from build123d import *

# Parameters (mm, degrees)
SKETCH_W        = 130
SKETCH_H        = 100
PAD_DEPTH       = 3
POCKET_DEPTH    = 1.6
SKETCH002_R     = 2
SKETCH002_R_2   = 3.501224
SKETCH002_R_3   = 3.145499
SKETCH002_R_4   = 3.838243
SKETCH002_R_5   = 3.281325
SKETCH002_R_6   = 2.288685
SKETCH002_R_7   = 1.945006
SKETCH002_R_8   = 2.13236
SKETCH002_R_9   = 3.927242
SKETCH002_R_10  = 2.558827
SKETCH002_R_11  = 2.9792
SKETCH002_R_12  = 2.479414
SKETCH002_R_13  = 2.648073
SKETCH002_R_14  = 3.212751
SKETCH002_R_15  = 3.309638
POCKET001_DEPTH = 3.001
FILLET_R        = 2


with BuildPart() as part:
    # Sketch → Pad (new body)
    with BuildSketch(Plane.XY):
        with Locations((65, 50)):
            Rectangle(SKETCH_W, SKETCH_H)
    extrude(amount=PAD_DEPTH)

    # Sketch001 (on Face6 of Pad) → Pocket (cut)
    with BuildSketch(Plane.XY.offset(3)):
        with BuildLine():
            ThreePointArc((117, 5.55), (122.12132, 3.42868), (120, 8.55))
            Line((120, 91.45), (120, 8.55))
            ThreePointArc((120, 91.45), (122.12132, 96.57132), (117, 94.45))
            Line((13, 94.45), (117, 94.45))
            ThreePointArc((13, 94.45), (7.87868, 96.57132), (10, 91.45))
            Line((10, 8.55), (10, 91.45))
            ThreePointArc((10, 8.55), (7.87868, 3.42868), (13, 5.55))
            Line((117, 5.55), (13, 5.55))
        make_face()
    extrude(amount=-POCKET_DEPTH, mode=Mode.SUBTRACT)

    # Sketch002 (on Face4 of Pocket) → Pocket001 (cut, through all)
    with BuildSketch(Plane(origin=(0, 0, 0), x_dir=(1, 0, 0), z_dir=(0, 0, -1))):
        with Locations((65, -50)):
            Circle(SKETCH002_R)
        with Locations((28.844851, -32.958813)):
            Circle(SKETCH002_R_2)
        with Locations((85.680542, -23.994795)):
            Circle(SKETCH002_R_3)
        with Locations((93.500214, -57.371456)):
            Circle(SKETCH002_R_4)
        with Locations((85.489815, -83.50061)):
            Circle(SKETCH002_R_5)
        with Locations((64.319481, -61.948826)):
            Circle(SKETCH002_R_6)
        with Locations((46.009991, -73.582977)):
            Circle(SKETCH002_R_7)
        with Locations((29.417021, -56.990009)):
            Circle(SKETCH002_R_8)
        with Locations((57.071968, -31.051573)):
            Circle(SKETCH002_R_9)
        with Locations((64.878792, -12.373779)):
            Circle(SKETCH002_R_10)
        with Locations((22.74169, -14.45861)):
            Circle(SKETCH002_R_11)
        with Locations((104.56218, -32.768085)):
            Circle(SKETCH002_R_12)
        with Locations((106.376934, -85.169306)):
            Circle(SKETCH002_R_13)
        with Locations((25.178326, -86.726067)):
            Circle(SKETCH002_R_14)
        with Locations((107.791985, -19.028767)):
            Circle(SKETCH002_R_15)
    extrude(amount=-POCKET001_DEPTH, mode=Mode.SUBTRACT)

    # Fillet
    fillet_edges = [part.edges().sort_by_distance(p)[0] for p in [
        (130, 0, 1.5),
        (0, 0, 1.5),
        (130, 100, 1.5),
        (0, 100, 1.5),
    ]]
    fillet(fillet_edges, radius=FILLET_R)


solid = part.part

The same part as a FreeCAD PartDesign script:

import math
import FreeCAD as App
import Part
import Sketcher

V = App.Vector


def edges_at(feature, points):
    """Names of the edges that pass closest to the given points."""
    edges = feature.Shape.Edges
    near = lambda p: min(range(len(edges)), key=lambda i: edges[i].distToShape(Part.Vertex(*p))[0])
    return sorted({f"Edge{near(p) + 1}" for p in points})

doc = App.newDocument("Part")
params = doc.addObject("Spreadsheet::Sheet", "Params")
for row, (alias, value) in enumerate([
    ("sketch1_width", "130 mm"),
    ("sketch1_height", "100 mm"),
    ("pad1_length", "3 mm"),
    ("sketch2_radius", "3 mm"),
    ("sketch2_width", "104 mm"),
    ("sketch2_height", "82.9 mm"),
    ("pocket1_length", "1.6 mm"),
    ("sketch3_diameter", "4 mm"),
    ("fillet_radius", "2 mm"),
], start=1):
    params.set(f"A{row}", alias)
    params.set(f"B{row}", "=" + value)
    params.setAlias(f"B{row}", alias)

body = doc.addObject("PartDesign::Body", "Body")

sketch1 = body.newObject("Sketcher::SketchObject", "Sketch")
sketch1.AttachmentSupport = (doc.getObject("XY_Plane"), [""])
sketch1.MapMode = "FlatFace"
sketch1.addGeometry([
    Part.LineSegment(V(0, 100, 0), V(0, 0, 0)),
    Part.LineSegment(V(0, 0, 0), V(130, 0, 0)),
    Part.LineSegment(V(130, 0, 0), V(130, 100, 0)),
    Part.LineSegment(V(130, 100, 0), V(0, 100, 0)),
], False)
sketch1.addConstraint([
    Sketcher.Constraint("Coincident", 0, 2, 1, 1),
    Sketcher.Constraint("Coincident", 1, 2, 2, 1),
    Sketcher.Constraint("Coincident", 2, 2, 3, 1),
    Sketcher.Constraint("Coincident", 3, 2, 0, 1),
    Sketcher.Constraint("Vertical", 0),
    Sketcher.Constraint("Horizontal", 1),
    Sketcher.Constraint("Vertical", 2),
    Sketcher.Constraint("Horizontal", 3),
    Sketcher.Constraint("Coincident", 0, 2, -1, 1),
    Sketcher.Constraint("DistanceX", 1, 1, 1, 2, 130.0),
    Sketcher.Constraint("DistanceY", 0, 2, 0, 1, 100.0),
])
sketch1.setExpression("Constraints[9]", "Params.sketch1_width")
sketch1.setExpression("Constraints[10]", "Params.sketch1_height")
pad1 = body.newObject("PartDesign::Pad", "Pad")
pad1.Profile = sketch1
pad1.setExpression("Length", "Params.pad1_length")

sketch2 = body.newObject("Sketcher::SketchObject", "Sketch001")
sketch2.AttachmentSupport = (doc.getObject("XY_Plane"), [""])
sketch2.MapMode = "FlatFace"
sketch2.AttachmentOffset = App.Placement(V(0, 0, 3), App.Rotation())
sketch2.addGeometry([
    Part.ArcOfCircle(Part.Circle(V(120, 5.6, 0), V(0, 0, 1), 3), math.radians(-180), math.radians(90)),
    Part.LineSegment(V(120, 8.6, 0), V(120, 91.5, 0)),
    Part.ArcOfCircle(Part.Circle(V(120, 94.4, 0), V(0, 0, 1), 3), math.radians(-90), math.radians(180)),
    Part.LineSegment(V(117, 94.5, 0), V(13, 94.5, 0)),
    Part.ArcOfCircle(Part.Circle(V(10, 94.4, 0), V(0, 0, 1), 3), math.radians(0), math.radians(270)),
    Part.LineSegment(V(10, 91.5, 0), V(10, 8.6, 0)),
    Part.ArcOfCircle(Part.Circle(V(10, 5.6, 0), V(0, 0, 1), 3), math.radians(90), math.radians(360)),
    Part.LineSegment(V(13, 5.5, 0), V(117, 5.5, 0)),
], False)
sketch2.addConstraint([
    Sketcher.Constraint("Coincident", 0, 2, 1, 1),
    Sketcher.Constraint("Coincident", 1, 2, 2, 1),
    Sketcher.Constraint("Coincident", 2, 2, 3, 1),
    Sketcher.Constraint("Coincident", 3, 2, 4, 1),
    Sketcher.Constraint("Coincident", 4, 2, 5, 1),
    Sketcher.Constraint("Coincident", 5, 2, 6, 1),
    Sketcher.Constraint("Coincident", 6, 2, 7, 1),
    Sketcher.Constraint("Coincident", 7, 2, 0, 1),
    Sketcher.Constraint("Vertical", 1),
    Sketcher.Constraint("Horizontal", 3),
    Sketcher.Constraint("Vertical", 5),
    Sketcher.Constraint("Horizontal", 7),
    Sketcher.Constraint("Equal", 0, 2),
    Sketcher.Constraint("Equal", 2, 4),
    Sketcher.Constraint("Equal", 4, 6),
    Sketcher.Constraint("Horizontal", 2, 3, 4, 3),
    Sketcher.Constraint("Horizontal", 0, 3, 6, 3),
    Sketcher.Constraint("Horizontal", 4, 3, 2, 2),
    Sketcher.Constraint("Horizontal", 0, 3, 6, 2),
    Sketcher.Constraint("Vertical", 0, 3, 2, 3),
    Sketcher.Constraint("Vertical", 4, 3, 6, 3),
    Sketcher.Constraint("Vertical", 2, 3, 0, 2),
    Sketcher.Constraint("Vertical", 6, 3, 4, 2),
    Sketcher.Constraint("Radius", 0, 3.0),
    Sketcher.Constraint("DistanceX", 3, 2, 3, 1, 104.0),
    Sketcher.Constraint("DistanceY", 1, 1, 1, 2, 82.9),
    Sketcher.Constraint("DistanceX", -1, 1, 0, 3, 120.0),
    Sketcher.Constraint("DistanceY", -1, 1, 0, 3, 5.55),
])
sketch2.setExpression("Constraints[23]", "Params.sketch2_radius")
sketch2.setExpression("Constraints[24]", "Params.sketch2_width")
sketch2.setExpression("Constraints[25]", "Params.sketch2_height")
pocket1 = body.newObject("PartDesign::Pocket", "Pocket")
pocket1.Profile = sketch2
pocket1.setExpression("Length", "Params.pocket1_length")

sketch3 = body.newObject("Sketcher::SketchObject", "Sketch002")
sketch3.AttachmentSupport = (doc.getObject("XY_Plane"), [""])
sketch3.MapMode = "FlatFace"
sketch3.addGeometry([
    Part.Circle(V(65, 50, 0), V(0, 0, 1), 2),
    Part.Circle(V(28.8, 33, 0), V(0, 0, 1), 3.5),
    Part.Circle(V(85.7, 24, 0), V(0, 0, 1), 3.1),
    Part.Circle(V(93.5, 57.4, 0), V(0, 0, 1), 3.8),
    Part.Circle(V(85.5, 83.5, 0), V(0, 0, 1), 3.3),
    Part.Circle(V(64.3, 61.9, 0), V(0, 0, 1), 2.3),
    Part.Circle(V(46, 73.6, 0), V(0, 0, 1), 1.9),
    Part.Circle(V(29.4, 57, 0), V(0, 0, 1), 2.1),
    Part.Circle(V(57.1, 31.1, 0), V(0, 0, 1), 3.9),
    Part.Circle(V(64.9, 12.4, 0), V(0, 0, 1), 2.6),
    Part.Circle(V(22.7, 14.5, 0), V(0, 0, 1), 3),
    Part.Circle(V(104.6, 32.8, 0), V(0, 0, 1), 2.5),
    Part.Circle(V(106.4, 85.2, 0), V(0, 0, 1), 2.6),
    Part.Circle(V(25.2, 86.7, 0), V(0, 0, 1), 3.2),
    Part.Circle(V(107.8, 19, 0), V(0, 0, 1), 3.3),
], False)
sketch3.addConstraint([
    Sketcher.Constraint("Diameter", 0, 4.0),
    Sketcher.Constraint("DistanceX", -1, 1, 0, 3, 65.0),
    Sketcher.Constraint("DistanceY", -1, 1, 0, 3, 50.0),
    Sketcher.Constraint("Diameter", 10, 5.9584),
    Sketcher.Constraint("Diameter", 13, 6.425502),
    Sketcher.Constraint("Diameter", 1, 7.002448),
    Sketcher.Constraint("Diameter", 4, 6.56265),
    Sketcher.Constraint("Diameter", 5, 4.57737),
    Sketcher.Constraint("Diameter", 6, 3.890012),
    Sketcher.Constraint("Diameter", 7, 4.26472),
    Sketcher.Constraint("Diameter", 2, 6.290998),
    Sketcher.Constraint("Diameter", 3, 7.676486),
    Sketcher.Constraint("Diameter", 8, 7.854484),
    Sketcher.Constraint("Diameter", 9, 5.117654),
    Sketcher.Constraint("Diameter", 11, 4.958828),
    Sketcher.Constraint("Diameter", 12, 5.296146),
    Sketcher.Constraint("Diameter", 14, 6.619276),
    Sketcher.Constraint("DistanceX", 4, 3, 3, 3, 8.010399),
    Sketcher.Constraint("DistanceY", 7, 3, 4, 3, 26.510601),
    Sketcher.Constraint("DistanceY", 10, 3, 7, 3, 42.531399),
    Sketcher.Constraint("DistanceX", -1, 1, 1, 3, 28.844851),
    Sketcher.Constraint("DistanceY", -1, 1, 4, 3, 83.50061),
    Sketcher.Constraint("DistanceX", -1, 1, 5, 3, 64.319481),
    Sketcher.Constraint("DistanceX", -1, 1, 6, 3, 46.009991),
    Sketcher.Constraint("DistanceX", -1, 1, 7, 3, 29.417021),
    Sketcher.Constraint("DistanceY", -1, 1, 9, 3, 12.373779),
    Sketcher.Constraint("DistanceX", -1, 1, 10, 3, 22.74169),
    Sketcher.Constraint("DistanceX", -1, 1, 11, 3, 104.56218),
    Sketcher.Constraint("DistanceX", 1, 3, 2, 3, 56.835691),
    Sketcher.Constraint("DistanceX", 2, 3, 3, 3, 7.819672),
    Sketcher.Constraint("DistanceY", 2, 3, 3, 3, 33.376661),
    Sketcher.Constraint("DistanceY", 3, 3, 5, 3, 4.57737),
    Sketcher.Constraint("DistanceY", 5, 3, 6, 3, 11.634151),
    Sketcher.Constraint("DistanceY", 8, 3, 1, 3, 1.90724),
    Sketcher.Constraint("DistanceY", 2, 3, 8, 3, 7.056778),
    Sketcher.Constraint("DistanceX", 9, 3, 2, 3, 20.80175),
    Sketcher.Constraint("DistanceY", 2, 3, 11, 3, 8.77329),
    Sketcher.Constraint("DistanceX", 4, 3, 12, 3, 20.887119),
    Sketcher.Constraint("DistanceY", 3, 3, 12, 3, 27.79785),
    Sketcher.Constraint("DistanceY", 6, 3, 13, 3, 13.14309),
    Sketcher.Constraint("DistanceY", 7, 3, 13, 3, 29.736058),
    Sketcher.Constraint("DistanceY", 14, 3, 11, 3, 13.739318),
    Sketcher.Constraint("DistanceX", 3, 3, 14, 3, 14.291771),
    Sketcher.Constraint("DistanceX", -1, 1, 8, 3, 57.071968),
    Sketcher.Constraint("DistanceX", -1, 1, 13, 3, 25.178326),
])
sketch3.setExpression("Constraints[0]", "Params.sketch3_diameter")
pocket2 = body.newObject("PartDesign::Pocket", "Pocket001")
pocket2.Profile = sketch3
pocket2.Type = "ThroughAll"
pocket2.Reversed = True
doc.recompute()

fillet = body.newObject("PartDesign::Fillet", "Fillet")
fillet.Base = (pocket2, edges_at(pocket2, [
    (130, 0, 1.5),
    (0, 0, 1.5),
    (130, 100, 1.5),
    (0, 100, 1.5),
]))
fillet.setExpression("Radius", "Params.fillet_radius")

doc.recompute()
